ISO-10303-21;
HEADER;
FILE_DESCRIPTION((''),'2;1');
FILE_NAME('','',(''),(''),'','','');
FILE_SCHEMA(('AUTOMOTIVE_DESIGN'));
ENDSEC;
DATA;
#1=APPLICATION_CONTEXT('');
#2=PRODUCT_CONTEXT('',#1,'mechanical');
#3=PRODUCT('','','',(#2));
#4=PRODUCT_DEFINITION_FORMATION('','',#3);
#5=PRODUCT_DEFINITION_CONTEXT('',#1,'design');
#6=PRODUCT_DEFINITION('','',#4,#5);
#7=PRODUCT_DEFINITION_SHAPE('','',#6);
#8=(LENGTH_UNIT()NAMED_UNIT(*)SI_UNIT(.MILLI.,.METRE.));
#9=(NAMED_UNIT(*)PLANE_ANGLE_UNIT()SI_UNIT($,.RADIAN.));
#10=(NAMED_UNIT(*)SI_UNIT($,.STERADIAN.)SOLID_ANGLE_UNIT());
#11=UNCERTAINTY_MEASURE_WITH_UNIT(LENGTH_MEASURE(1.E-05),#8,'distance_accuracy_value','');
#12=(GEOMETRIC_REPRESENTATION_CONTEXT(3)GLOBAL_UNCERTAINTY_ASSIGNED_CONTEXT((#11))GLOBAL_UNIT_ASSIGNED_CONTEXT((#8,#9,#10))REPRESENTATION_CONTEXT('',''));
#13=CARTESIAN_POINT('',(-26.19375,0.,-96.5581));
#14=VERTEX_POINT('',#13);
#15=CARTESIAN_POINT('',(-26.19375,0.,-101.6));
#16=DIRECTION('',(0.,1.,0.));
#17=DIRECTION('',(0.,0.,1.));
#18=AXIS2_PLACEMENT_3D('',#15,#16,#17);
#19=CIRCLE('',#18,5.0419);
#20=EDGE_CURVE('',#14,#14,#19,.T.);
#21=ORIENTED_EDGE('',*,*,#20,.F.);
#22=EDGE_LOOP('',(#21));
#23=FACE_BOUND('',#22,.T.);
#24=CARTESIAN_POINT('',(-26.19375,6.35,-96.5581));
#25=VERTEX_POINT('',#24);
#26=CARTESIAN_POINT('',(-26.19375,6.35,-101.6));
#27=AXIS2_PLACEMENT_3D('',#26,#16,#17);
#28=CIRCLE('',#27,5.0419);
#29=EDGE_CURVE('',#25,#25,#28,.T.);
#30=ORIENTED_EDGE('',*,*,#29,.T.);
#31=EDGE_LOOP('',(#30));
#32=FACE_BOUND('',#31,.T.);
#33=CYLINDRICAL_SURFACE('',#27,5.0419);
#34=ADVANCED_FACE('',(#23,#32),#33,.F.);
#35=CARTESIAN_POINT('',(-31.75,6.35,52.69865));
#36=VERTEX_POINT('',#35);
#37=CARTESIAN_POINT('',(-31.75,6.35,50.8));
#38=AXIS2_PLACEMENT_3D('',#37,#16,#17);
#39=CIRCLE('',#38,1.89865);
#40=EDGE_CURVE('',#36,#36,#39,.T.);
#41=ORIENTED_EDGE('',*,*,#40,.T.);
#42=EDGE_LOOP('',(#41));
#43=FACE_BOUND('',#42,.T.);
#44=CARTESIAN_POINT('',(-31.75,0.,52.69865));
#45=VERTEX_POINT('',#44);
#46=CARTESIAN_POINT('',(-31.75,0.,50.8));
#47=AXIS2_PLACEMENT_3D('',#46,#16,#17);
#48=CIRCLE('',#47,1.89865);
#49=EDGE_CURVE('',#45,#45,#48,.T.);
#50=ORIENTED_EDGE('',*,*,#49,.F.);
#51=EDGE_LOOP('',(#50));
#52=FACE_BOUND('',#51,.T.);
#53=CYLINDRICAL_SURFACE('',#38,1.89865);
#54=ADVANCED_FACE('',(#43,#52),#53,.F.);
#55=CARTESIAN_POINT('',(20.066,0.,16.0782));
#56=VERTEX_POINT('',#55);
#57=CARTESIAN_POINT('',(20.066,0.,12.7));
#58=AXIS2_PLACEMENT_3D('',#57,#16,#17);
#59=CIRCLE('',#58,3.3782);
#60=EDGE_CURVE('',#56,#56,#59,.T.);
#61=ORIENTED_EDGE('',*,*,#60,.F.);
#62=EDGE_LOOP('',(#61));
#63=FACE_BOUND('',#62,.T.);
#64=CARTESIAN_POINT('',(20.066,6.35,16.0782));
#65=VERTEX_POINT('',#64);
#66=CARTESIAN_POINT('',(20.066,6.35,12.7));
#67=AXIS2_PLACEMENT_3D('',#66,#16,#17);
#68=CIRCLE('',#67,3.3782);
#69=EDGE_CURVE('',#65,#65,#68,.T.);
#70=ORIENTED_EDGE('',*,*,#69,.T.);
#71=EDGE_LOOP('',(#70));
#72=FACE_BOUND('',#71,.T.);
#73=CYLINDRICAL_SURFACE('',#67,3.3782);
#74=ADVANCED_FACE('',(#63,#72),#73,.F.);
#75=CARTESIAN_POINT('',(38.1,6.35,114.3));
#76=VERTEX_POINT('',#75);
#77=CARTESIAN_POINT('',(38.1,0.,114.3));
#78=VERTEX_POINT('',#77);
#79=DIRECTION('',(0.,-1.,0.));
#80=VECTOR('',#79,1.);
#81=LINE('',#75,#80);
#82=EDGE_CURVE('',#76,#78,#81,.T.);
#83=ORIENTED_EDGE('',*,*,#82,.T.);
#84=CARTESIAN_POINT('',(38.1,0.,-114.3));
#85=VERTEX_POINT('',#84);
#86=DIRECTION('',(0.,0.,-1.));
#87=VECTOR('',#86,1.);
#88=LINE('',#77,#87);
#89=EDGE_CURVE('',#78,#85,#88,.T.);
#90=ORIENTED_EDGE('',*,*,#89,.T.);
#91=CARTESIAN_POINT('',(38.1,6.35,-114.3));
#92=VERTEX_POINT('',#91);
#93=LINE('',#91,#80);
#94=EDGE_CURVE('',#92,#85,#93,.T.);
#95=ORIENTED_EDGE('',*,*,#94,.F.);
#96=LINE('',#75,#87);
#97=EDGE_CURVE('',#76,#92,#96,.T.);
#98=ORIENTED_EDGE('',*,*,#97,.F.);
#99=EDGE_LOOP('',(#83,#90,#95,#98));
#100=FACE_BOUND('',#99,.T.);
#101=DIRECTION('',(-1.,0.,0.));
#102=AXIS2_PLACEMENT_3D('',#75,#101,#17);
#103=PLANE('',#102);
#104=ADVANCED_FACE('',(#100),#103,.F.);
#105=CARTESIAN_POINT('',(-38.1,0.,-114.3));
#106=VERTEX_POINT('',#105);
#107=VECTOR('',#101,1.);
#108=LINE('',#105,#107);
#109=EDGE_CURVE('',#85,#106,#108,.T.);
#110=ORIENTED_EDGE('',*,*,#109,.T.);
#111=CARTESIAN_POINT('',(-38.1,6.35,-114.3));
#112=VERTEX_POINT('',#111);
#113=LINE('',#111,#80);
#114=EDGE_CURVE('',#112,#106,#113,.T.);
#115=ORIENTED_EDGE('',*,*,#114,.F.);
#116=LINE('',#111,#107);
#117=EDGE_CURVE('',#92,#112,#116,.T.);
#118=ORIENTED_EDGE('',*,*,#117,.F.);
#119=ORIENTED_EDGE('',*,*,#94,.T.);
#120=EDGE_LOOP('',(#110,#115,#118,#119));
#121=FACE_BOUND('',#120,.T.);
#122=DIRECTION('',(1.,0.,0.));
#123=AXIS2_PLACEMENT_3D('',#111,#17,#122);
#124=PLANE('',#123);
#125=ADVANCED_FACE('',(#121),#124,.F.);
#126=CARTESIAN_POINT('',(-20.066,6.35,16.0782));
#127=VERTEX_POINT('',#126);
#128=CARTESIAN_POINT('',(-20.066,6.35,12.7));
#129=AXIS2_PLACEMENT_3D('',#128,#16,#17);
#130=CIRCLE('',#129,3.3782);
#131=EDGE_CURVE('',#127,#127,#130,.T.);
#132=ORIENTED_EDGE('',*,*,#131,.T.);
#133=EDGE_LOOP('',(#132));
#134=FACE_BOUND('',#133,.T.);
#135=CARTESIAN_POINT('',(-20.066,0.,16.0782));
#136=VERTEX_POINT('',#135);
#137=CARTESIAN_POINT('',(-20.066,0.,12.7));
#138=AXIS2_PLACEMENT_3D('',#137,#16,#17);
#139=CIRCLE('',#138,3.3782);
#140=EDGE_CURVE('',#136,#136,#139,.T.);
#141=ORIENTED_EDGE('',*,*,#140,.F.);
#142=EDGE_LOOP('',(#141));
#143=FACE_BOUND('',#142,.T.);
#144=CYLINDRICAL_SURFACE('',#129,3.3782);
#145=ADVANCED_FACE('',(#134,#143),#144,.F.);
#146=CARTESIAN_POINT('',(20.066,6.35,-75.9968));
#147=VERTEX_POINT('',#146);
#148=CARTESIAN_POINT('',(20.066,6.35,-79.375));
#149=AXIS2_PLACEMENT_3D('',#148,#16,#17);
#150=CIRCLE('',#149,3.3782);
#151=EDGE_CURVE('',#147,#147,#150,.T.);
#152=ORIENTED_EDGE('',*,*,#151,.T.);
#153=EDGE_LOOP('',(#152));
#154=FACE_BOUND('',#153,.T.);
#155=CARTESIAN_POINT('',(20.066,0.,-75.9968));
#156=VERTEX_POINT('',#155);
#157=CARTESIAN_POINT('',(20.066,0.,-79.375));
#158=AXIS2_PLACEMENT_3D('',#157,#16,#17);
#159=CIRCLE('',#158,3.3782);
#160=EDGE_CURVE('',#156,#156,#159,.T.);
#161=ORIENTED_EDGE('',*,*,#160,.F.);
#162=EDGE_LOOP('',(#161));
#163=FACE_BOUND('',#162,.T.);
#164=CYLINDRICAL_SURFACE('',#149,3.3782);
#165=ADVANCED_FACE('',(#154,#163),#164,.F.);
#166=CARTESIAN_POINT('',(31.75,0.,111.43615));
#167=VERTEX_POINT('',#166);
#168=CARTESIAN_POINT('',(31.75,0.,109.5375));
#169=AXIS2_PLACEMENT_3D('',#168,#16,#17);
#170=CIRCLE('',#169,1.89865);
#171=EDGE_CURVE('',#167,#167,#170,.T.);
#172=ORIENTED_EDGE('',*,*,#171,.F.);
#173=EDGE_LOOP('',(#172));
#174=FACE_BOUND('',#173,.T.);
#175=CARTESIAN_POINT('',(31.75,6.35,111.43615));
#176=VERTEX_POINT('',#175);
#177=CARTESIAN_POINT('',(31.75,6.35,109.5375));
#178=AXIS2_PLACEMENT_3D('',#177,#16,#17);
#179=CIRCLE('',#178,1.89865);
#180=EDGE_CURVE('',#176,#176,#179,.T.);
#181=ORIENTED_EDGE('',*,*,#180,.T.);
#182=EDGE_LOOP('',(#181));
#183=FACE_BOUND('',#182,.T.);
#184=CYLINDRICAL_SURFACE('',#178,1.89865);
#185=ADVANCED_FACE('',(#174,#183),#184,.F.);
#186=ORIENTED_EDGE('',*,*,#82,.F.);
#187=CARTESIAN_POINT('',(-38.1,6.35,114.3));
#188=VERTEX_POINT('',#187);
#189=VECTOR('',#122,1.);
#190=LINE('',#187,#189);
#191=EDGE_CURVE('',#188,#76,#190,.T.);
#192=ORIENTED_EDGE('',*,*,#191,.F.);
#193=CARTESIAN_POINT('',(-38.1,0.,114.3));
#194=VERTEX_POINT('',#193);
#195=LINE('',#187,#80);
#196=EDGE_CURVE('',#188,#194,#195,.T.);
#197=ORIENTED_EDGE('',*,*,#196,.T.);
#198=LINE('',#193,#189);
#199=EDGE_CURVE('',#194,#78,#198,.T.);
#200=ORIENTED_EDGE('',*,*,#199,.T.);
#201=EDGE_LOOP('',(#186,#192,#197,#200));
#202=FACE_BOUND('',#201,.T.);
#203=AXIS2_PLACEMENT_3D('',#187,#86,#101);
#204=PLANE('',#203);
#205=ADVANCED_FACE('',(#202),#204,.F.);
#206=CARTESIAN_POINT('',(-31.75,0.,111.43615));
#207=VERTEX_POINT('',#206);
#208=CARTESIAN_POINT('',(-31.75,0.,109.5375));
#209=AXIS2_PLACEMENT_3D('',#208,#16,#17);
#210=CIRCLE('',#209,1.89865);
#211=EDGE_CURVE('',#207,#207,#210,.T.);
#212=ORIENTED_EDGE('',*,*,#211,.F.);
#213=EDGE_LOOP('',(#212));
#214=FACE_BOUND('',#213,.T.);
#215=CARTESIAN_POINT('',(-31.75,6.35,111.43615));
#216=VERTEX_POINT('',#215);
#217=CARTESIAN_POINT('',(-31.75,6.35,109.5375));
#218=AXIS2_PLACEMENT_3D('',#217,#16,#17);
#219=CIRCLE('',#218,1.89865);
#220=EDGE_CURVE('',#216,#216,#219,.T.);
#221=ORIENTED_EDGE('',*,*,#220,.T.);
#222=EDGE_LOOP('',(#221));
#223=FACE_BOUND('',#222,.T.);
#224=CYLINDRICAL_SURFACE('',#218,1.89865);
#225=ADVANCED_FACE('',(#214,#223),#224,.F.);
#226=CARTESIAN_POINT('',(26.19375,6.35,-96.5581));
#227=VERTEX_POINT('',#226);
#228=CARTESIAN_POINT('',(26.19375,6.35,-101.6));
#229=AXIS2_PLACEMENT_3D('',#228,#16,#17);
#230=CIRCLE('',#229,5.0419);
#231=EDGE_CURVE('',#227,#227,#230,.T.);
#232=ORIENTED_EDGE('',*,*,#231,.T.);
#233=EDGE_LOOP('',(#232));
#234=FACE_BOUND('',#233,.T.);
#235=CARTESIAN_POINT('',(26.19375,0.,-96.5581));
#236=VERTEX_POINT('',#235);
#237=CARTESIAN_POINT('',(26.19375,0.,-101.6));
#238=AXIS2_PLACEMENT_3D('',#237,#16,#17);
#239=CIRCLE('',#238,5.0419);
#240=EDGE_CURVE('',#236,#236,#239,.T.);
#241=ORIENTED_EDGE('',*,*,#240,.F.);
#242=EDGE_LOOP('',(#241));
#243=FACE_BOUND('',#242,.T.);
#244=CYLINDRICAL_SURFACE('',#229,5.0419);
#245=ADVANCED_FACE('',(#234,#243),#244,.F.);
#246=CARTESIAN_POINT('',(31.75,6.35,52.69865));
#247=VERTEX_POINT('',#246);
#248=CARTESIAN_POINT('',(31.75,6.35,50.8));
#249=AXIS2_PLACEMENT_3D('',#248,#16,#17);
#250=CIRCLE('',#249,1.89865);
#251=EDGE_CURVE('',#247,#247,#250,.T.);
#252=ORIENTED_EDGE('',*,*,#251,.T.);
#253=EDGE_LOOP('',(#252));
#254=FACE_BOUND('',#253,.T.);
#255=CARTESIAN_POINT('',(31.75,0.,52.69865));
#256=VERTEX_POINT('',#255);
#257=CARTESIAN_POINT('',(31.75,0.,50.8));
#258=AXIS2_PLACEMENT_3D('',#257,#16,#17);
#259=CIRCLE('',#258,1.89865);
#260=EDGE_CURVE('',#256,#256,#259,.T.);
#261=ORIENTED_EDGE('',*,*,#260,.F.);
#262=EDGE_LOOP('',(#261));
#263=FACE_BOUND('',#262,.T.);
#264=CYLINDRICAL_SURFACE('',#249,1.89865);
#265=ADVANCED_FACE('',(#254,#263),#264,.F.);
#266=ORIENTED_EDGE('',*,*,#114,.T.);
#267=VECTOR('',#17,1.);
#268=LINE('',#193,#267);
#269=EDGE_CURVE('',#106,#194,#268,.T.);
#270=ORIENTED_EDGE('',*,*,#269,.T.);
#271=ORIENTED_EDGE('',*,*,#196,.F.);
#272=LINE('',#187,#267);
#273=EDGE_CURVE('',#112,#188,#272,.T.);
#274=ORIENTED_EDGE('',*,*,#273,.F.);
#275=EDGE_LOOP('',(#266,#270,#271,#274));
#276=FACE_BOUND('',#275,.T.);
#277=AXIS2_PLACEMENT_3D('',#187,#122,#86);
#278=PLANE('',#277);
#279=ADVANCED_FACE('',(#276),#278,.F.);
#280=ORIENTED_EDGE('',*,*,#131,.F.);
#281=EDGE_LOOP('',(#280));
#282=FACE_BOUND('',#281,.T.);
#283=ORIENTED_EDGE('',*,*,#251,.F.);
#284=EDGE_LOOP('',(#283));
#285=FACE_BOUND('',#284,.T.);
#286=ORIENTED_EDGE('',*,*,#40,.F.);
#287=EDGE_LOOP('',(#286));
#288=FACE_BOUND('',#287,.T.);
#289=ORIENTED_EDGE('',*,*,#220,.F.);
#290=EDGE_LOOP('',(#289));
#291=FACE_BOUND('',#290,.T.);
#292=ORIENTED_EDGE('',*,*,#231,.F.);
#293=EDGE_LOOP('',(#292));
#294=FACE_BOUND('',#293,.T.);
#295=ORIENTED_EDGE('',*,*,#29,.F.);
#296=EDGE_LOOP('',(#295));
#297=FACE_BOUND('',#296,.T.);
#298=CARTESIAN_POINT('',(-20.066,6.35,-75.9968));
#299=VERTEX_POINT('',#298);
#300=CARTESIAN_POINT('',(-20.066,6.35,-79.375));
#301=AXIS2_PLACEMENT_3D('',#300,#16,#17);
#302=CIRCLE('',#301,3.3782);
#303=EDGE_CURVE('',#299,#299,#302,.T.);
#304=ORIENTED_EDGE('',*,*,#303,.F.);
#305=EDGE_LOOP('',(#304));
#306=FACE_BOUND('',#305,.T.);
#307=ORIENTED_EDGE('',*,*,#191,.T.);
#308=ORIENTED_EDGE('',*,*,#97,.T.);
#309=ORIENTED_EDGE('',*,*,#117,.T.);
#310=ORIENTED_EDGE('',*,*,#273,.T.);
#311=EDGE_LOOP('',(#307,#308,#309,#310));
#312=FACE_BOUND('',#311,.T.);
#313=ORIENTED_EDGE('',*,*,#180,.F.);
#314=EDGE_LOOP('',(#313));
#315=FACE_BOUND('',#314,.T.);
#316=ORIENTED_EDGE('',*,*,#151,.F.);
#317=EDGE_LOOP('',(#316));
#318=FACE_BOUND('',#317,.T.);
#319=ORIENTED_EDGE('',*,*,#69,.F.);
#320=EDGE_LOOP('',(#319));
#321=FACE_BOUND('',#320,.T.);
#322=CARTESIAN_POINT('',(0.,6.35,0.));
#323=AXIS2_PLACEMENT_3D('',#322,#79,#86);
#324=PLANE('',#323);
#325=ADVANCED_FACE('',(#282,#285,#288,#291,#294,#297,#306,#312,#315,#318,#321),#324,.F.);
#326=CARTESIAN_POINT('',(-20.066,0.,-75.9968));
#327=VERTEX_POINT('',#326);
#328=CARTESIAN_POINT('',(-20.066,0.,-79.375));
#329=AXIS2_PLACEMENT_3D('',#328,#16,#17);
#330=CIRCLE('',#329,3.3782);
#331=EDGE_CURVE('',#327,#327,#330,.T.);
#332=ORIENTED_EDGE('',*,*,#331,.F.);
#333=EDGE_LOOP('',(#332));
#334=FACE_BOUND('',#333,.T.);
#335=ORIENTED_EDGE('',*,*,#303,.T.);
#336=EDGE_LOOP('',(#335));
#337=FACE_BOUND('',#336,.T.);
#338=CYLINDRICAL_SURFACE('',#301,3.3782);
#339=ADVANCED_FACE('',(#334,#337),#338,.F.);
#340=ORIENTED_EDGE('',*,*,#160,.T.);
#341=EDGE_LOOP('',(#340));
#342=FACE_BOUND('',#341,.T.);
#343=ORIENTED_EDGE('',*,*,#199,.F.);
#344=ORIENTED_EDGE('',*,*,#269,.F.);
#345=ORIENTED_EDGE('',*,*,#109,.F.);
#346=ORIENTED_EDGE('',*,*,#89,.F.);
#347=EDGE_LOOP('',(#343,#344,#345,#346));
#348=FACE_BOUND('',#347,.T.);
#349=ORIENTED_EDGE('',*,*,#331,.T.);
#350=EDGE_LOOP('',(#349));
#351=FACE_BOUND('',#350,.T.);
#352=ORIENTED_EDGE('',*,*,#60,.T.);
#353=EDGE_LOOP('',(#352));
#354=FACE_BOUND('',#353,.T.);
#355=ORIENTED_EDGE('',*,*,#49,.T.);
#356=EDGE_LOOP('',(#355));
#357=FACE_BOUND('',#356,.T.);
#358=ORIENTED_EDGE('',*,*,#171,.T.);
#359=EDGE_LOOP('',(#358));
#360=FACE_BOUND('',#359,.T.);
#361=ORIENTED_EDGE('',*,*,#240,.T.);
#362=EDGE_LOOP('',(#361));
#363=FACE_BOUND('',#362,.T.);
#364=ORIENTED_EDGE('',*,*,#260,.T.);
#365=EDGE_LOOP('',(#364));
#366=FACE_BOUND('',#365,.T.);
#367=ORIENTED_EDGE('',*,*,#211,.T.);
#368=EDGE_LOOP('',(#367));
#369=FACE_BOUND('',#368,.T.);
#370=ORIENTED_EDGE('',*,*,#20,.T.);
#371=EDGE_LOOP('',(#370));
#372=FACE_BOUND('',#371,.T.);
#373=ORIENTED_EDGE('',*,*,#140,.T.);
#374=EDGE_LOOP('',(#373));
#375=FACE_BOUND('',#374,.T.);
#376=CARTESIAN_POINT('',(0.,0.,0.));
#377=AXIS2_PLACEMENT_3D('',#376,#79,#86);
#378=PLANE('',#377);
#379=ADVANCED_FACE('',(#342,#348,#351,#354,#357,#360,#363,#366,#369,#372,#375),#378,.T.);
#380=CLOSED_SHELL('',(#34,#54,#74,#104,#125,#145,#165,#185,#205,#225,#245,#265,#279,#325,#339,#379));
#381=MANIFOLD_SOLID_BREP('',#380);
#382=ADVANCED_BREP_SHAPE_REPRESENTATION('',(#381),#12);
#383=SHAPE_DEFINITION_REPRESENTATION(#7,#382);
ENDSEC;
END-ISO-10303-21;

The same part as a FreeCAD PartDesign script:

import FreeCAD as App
import Part
import Sketcher
Q = App.Units.Quantity

doc = App.newDocument("Part")
body = doc.addObject("PartDesign::Body", "Body")

# Sketch on XZ plane
sketch1 = body.newObject("Sketcher::SketchObject", "Sketch")
sketch1.AttachmentSupport = (doc.getObject("XZ_Plane"), [""])
sketch1.MapMode = "FlatFace"
sketch1.addGeometry([
    Part.LineSegment(App.Vector(-38, -114, 0), App.Vector(-38, 114, 0)),
    Part.LineSegment(App.Vector(-38, 114, 0), App.Vector(38, 114, 0)),
    Part.LineSegment(App.Vector(38, 114, 0), App.Vector(38, -114, 0)),
    Part.LineSegment(App.Vector(38, -114, 0), App.Vector(-38, -114, 0)),
], False)
sketch1.addConstraint([
    Sketcher.Constraint("Coincident", 0, 2, 1, 1),
    Sketcher.Constraint("Coincident", 1, 2, 2, 1),
    Sketcher.Constraint("Coincident", 2, 2, 3, 1),
    Sketcher.Constraint("Coincident", 3, 2, 0, 1),
    Sketcher.Constraint("Vertical", 0),
    Sketcher.Constraint("Horizontal", 1),
    Sketcher.Constraint("Vertical", 2),
    Sketcher.Constraint("Horizontal", 3),
    Sketcher.Constraint("Symmetric", 0, 2, 2, 2, -1, 1),
    Sketcher.Constraint("DistanceX", 1, 1, 1, 2, Q("3 in")),
    Sketcher.Constraint("DistanceY", 0, 1, 0, 2, Q("9 in")),
])
pad1 = body.newObject("PartDesign::Pad", "Pad")
pad1.Profile = sketch1
pad1.Length = Q("0.25 in")
pad1.Reversed = True

# Sketch on XZ plane
sketch2 = body.newObject("Sketcher::SketchObject", "Sketch001")
sketch2.AttachmentSupport = (doc.getObject("XZ_Plane"), [""])
sketch2.MapMode = "FlatFace"
sketch2.AttachmentOffset = App.Placement(App.Vector(0, 0, -0.25 * 25.4), App.Rotation())
sketch2.addGeometry([
    Part.Circle(App.Vector(-20.1, -79.4, 0), App.Vector(0, 0, 1), 3.4),
    Part.Circle(App.Vector(20.1, 12.7, 0), App.Vector(0, 0, 1), 3.4),
    Part.Circle(App.Vector(-20.1, 12.7, 0), App.Vector(0, 0, 1), 3.4),
    Part.Circle(App.Vector(20.1, -79.4, 0), App.Vector(0, 0, 1), 3.4),
], False)
sketch2.addConstraint([
    Sketcher.Constraint("Equal", 0, 1),
    Sketcher.Constraint("Equal", 1, 2),
    Sketcher.Constraint("Equal", 2, 3),
    Sketcher.Constraint("Symmetric", 1, 3, 2, 3, -2),
    Sketcher.Constraint("Symmetric", 0, 3, 3, 3, -2),
    Sketcher.Constraint("Vertical", 0, 3, 2, 3),
    Sketcher.Constraint("Diameter", 0, Q("0.266 in")),
    Sketcher.Constraint("DistanceY", -1, 1, 1, 3, Q("0.5 in")),
    Sketcher.Constraint("DistanceX", 0, 3, -1, 1, Q("0.79 in")),
    Sketcher.Constraint("DistanceY", 0, 3, -1, 1, Q("3.125 in")),
])
doc.recompute()
hole = body.newObject("PartDesign::Hole", "Hole")
hole.Profile = sketch2
hole.ThreadType = "None"
hole.Diameter = Q("0.266 in")
hole.DepthType = "ThroughAll"
hole.Reversed = True

# Sketch on XZ plane
sketch3 = body.newObject("Sketcher::SketchObject", "Sketch002")
sketch3.AttachmentSupport = (doc.getObject("XZ_Plane"), [""])
sketch3.MapMode = "FlatFace"
sketch3.AttachmentOffset = App.Placement(App.Vector(0, 0, -0.25 * 25.4), App.Rotation())
sketch3.addGeometry([
    Part.Circle(App.Vector(-31.8, 50.8, 0), App.Vector(0, 0, 1), 1.9),
    Part.Circle(App.Vector(-31.8, 109.5, 0), App.Vector(0, 0, 1), 1.9),
    Part.Circle(App.Vector(31.8, 50.8, 0), App.Vector(0, 0, 1), 1.9),
    Part.Circle(App.Vector(31.8, 109.5, 0), App.Vector(0, 0, 1), 1.9),
], False)
sketch3.addConstraint([
    Sketcher.Constraint("Equal", 0, 1),
    Sketcher.Constraint("Equal", 1, 2),
    Sketcher.Constraint("Equal", 2, 3),
    Sketcher.Constraint("Symmetric", 0, 3, 2, 3, -2),
    Sketcher.Constraint("Symmetric", 1, 3, 3, 3, -2),
    Sketcher.Constraint("Vertical", 0, 3, 1, 3),
    Sketcher.Constraint("DistanceY", -1, 1, 0, 3, Q("2 in")),
    Sketcher.Constraint("Diameter", 0, Q("0.1495 in")),
    Sketcher.Constraint("DistanceX", 0, 3, 2, 3, Q("2.5 in")),
    Sketcher.Constraint("DistanceY", -1, 1, 1, 3, Q("4.3125 in")),
])
doc.recompute()
hole2 = body.newObject("PartDesign::Hole", "Hole001")
hole2.Profile = sketch3
hole2.ThreadType = "None"
hole2.Diameter = Q("0.1495 in")
hole2.DepthType = "ThroughAll"
hole2.Reversed = True

# Sketch on XZ plane
sketch4 = body.newObject("Sketcher::SketchObject", "Sketch003")
sketch4.AttachmentSupport = (doc.getObject("XZ_Plane"), [""])
sketch4.MapMode = "FlatFace"
sketch4.AttachmentOffset = App.Placement(App.Vector(0, 0, -0.25 * 25.4), App.Rotation())
sketch4.addGeometry([
    Part.Circle(App.Vector(-26, -102, 0), App.Vector(0, 0, 1), 5),
    Part.Circle(App.Vector(26, -102, 0), App.Vector(0, 0, 1), 5),
], False)
sketch4.addConstraint([
    Sketcher.Constraint("Equal", 0, 1),
    Sketcher.Constraint("Symmetric", 0, 3, 1, 3, -2),
    Sketcher.Constraint("Diameter", 0, Q("0.397 in")),
    Sketcher.Constraint("DistanceY", 0, 3, -1, 1, Q("4 in")),
    Sketcher.Constraint("DistanceX", 0, 3, -1, 1, Q("1.03125 in")),
])
doc.recompute()
hole3 = body.newObject("PartDesign::Hole", "Hole002")
hole3.Profile = sketch4
hole3.ThreadType = "None"
hole3.Diameter = Q("0.397 in")
hole3.DepthType = "ThroughAll"
hole3.Reversed = True

doc.recompute()
